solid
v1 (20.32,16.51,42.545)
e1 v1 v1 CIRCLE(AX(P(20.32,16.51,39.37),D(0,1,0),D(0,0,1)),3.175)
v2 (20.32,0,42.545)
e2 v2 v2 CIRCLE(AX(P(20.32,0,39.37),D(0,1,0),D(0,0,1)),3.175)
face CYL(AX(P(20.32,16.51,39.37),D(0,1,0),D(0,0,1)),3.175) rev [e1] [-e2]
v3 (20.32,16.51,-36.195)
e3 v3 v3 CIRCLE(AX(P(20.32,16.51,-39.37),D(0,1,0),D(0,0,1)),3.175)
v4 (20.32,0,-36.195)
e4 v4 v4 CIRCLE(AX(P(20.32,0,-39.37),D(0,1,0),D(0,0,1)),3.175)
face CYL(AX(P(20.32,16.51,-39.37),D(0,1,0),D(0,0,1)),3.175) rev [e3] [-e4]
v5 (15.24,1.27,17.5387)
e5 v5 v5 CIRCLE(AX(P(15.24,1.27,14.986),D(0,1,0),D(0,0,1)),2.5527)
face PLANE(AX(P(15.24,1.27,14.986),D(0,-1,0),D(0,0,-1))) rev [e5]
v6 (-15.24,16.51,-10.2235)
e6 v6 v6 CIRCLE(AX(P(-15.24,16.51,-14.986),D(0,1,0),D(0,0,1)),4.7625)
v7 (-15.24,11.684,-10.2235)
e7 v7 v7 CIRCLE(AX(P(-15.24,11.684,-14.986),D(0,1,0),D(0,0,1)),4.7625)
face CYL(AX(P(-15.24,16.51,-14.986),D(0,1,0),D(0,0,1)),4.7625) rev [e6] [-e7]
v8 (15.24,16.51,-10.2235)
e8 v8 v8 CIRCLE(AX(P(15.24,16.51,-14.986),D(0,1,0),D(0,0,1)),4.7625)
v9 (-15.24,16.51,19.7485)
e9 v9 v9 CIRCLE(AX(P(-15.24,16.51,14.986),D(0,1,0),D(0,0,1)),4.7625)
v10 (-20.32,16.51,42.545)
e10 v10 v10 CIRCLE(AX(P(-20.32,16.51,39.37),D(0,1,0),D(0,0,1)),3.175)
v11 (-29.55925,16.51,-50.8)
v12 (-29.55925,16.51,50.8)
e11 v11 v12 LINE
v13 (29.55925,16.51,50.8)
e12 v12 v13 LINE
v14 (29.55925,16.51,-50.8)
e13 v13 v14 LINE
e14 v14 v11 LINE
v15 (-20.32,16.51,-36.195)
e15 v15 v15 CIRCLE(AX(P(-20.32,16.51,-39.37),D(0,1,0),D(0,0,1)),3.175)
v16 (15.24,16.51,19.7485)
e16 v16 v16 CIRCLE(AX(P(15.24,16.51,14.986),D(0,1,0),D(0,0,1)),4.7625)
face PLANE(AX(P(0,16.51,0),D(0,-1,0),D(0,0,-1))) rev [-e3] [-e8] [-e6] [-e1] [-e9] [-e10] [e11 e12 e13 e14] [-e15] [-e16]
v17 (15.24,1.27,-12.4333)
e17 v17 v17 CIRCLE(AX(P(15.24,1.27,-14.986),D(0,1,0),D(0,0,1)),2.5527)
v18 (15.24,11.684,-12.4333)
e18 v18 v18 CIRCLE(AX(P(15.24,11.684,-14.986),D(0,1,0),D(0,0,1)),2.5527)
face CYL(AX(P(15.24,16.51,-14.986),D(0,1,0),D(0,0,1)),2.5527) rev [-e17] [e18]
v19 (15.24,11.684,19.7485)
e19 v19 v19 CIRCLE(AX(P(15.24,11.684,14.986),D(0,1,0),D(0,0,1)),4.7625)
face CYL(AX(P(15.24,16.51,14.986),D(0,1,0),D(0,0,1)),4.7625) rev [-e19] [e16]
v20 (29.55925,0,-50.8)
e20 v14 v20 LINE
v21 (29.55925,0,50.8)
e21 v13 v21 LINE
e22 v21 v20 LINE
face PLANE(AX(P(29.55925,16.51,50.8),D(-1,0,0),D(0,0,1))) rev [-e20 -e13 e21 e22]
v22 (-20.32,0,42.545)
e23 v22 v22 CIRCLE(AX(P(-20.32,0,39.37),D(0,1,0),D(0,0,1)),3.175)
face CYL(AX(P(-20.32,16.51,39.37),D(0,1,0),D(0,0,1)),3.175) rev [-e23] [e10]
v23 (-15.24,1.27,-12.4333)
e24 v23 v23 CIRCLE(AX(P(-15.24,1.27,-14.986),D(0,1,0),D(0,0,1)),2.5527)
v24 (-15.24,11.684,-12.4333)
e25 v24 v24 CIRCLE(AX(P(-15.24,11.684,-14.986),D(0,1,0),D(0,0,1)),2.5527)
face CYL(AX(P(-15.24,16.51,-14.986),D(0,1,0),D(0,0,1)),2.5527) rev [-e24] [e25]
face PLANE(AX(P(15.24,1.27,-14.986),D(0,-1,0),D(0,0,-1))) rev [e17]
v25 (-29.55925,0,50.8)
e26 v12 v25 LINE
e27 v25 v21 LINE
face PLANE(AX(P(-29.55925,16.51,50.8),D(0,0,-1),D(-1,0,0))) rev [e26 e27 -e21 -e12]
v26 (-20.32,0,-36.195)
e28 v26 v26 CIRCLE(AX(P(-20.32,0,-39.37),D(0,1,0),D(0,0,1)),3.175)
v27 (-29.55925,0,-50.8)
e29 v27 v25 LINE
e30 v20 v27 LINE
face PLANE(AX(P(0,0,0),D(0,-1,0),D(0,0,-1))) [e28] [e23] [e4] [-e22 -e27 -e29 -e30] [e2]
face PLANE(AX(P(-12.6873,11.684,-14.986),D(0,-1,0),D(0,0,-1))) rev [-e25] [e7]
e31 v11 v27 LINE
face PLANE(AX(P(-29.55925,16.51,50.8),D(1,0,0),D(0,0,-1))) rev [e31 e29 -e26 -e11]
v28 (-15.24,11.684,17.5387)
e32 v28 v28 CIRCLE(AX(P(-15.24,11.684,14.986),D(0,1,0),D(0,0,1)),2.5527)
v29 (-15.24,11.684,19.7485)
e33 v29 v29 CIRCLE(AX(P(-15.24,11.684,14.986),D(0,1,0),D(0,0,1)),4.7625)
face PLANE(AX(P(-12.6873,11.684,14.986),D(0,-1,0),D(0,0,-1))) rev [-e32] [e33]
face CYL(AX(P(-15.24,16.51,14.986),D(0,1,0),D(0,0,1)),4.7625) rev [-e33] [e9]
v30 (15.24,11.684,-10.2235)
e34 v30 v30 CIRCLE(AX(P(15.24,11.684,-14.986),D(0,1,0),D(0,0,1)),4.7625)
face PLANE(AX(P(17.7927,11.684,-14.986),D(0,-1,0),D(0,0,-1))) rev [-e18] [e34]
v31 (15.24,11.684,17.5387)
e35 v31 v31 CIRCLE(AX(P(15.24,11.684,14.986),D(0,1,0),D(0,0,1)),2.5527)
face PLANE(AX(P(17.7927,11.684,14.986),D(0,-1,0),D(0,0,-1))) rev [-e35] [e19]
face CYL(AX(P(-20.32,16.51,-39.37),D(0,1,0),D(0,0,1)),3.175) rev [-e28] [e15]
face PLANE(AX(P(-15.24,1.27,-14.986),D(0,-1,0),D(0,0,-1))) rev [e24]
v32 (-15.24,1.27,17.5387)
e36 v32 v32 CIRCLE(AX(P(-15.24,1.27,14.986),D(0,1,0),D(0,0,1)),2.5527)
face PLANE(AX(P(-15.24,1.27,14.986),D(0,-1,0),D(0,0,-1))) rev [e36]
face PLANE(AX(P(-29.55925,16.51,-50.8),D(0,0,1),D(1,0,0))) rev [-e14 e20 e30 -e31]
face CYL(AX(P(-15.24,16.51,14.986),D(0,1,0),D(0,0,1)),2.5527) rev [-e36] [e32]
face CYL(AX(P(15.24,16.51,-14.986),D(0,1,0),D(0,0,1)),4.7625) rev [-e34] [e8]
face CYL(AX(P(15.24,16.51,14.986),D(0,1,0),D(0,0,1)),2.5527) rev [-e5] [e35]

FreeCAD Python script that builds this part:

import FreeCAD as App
import Part
import Sketcher
from FreeCAD import Vector
Q = App.Units.Quantity

doc = App.newDocument("Part")
body = doc.addObject("PartDesign::Body", "Body")

sketch1 = body.newObject("Sketcher::SketchObject", "Sketch")
sketch1.AttachmentSupport = (doc.getObject("XZ_Plane"), [""])
sketch1.MapMode = "FlatFace"
sketch1.addGeometry([
    Part.LineSegment(Vector(-30, -51, 0), Vector(-30, 51, 0)),
    Part.LineSegment(Vector(-30, 51, 0), Vector(30, 51, 0)),
    Part.LineSegment(Vector(30, 51, 0), Vector(30, -51, 0)),
    Part.LineSegment(Vector(30, -51, 0), Vector(-30, -51, 0)),
], False)
sketch1.addConstraint([
    Sketcher.Constraint("Coincident", 0, 2, 1, 1),
    Sketcher.Constraint("Coincident", 1, 2, 2, 1),
    Sketcher.Constraint("Coincident", 2, 2, 3, 1),
    Sketcher.Constraint("Coincident", 3, 2, 0, 1),
    Sketcher.Constraint("Vertical", 0),
    Sketcher.Constraint("Horizontal", 1),
    Sketcher.Constraint("Vertical", 2),
    Sketcher.Constraint("Horizontal", 3),
    Sketcher.Constraint("Symmetric", 0, 2, 2, 2, -1, 1),
    Sketcher.Constraint("DistanceY", 0, 1, 0, 2, Q("4 in")),
    Sketcher.Constraint("DistanceX", 1, 1, 1, 2, Q("2.3275 in")),
])
pad1 = body.newObject("PartDesign::Pad", "Pad")
pad1.Profile = sketch1
pad1.Length = Q("0.65 in")
pad1.Reversed = True

sketch2 = body.newObject("Sketcher::SketchObject", "Sketch001")
sketch2.AttachmentSupport = (doc.getObject("XZ_Plane"), [""])
sketch2.MapMode = "FlatFace"
sketch2.AttachmentOffset = App.Placement(Vector(0, 0, -0.65 * 25.4), App.Rotation())
sketch2.addGeometry([
    Part.Circle(Vector(-15.2, -15, 0), Vector(0, 0, 1), 2.6),
    Part.Circle(Vector(-15.2, 15, 0), Vector(0, 0, 1), 2.6),
    Part.Circle(Vector(15.2, 15, 0), Vector(0, 0, 1), 2.6),
    Part.Circle(Vector(15.2, -15, 0), Vector(0, 0, 1), 2.6),
], False)
sketch2.addConstraint([
    Sketcher.Constraint("Equal", 0, 1),
    Sketcher.Constraint("Equal", 1, 2),
    Sketcher.Constraint("Equal", 2, 3),
    Sketcher.Constraint("Symmetric", 0, 3, 2, 3, -1, 1),
    Sketcher.Constraint("Symmetric", 1, 3, 3, 3, -1, 1),
    Sketcher.Constraint("Symmetric", 1, 3, 2, 3, -2),
    Sketcher.Constraint("Diameter", 0, Q("0.201 in")),
    Sketcher.Constraint("DistanceX", 0, 3, -1, 1, Q("0.6 in")),
    Sketcher.Constraint("DistanceY", 0, 3, -1, 1, Q("0.59 in")),
])
doc.recompute()
hole = body.newObject("PartDesign::Hole", "Hole")
hole.Profile = sketch2
hole.ThreadType = "None"
hole.Diameter = Q("0.201 in")
hole.DepthType = "Dimension"
hole.Depth = Q("0.6 in")
hole.DrillPoint = "Flat"
hole.HoleCutType = "Counterbore"
hole.HoleCutDiameter = Q("0.375 in")
hole.HoleCutDepth = Q("0.19 in")
hole.Reversed = True

sketch3 = body.newObject("Sketcher::SketchObject", "Sketch002")
sketch3.AttachmentSupport = (doc.getObject("XZ_Plane"), [""])
sketch3.MapMode = "FlatFace"
sketch3.AttachmentOffset = App.Placement(Vector(0, 0, -0.65 * 25.4), App.Rotation())
sketch3.addGeometry([
    Part.Circle(Vector(20.3, 39.4, 0), Vector(0, 0, 1), 3.2),
    Part.Circle(Vector(-20.3, 39.4, 0), Vector(0, 0, 1), 3.2),
    Part.Circle(Vector(-20.3, -39.4, 0), Vector(0, 0, 1), 3.2),
    Part.Circle(Vector(20.3, -39.4, 0), Vector(0, 0, 1), 3.2),
], False)
sketch3.addConstraint([
    Sketcher.Constraint("Equal", 0, 1),
    Sketcher.Constraint("Equal", 1, 2),
    Sketcher.Constraint("Equal", 2, 3),
    Sketcher.Constraint("Symmetric", 0, 3, 2, 3, -1, 1),
    Sketcher.Constraint("Symmetric", 1, 3, 3, 3, -1, 1),
    Sketcher.Constraint("Symmetric", 0, 3, 1, 3, -2),
    Sketcher.Constraint("Diameter", 0, Q("0.25 in")),
    Sketcher.Constraint("DistanceX", -1, 1, 0, 3, Q("0.8 in")),
    Sketcher.Constraint("DistanceY", 2, 3, 1, 3, Q("3.1 in")),
])
doc.recompute()
hole2 = body.newObject("PartDesign::Hole", "Hole001")
hole2.Profile = sketch3
hole2.ThreadType = "None"
hole2.Diameter = Q("0.25 in")
hole2.DepthType = "ThroughAll"
hole2.Reversed = True

doc.recompute()
